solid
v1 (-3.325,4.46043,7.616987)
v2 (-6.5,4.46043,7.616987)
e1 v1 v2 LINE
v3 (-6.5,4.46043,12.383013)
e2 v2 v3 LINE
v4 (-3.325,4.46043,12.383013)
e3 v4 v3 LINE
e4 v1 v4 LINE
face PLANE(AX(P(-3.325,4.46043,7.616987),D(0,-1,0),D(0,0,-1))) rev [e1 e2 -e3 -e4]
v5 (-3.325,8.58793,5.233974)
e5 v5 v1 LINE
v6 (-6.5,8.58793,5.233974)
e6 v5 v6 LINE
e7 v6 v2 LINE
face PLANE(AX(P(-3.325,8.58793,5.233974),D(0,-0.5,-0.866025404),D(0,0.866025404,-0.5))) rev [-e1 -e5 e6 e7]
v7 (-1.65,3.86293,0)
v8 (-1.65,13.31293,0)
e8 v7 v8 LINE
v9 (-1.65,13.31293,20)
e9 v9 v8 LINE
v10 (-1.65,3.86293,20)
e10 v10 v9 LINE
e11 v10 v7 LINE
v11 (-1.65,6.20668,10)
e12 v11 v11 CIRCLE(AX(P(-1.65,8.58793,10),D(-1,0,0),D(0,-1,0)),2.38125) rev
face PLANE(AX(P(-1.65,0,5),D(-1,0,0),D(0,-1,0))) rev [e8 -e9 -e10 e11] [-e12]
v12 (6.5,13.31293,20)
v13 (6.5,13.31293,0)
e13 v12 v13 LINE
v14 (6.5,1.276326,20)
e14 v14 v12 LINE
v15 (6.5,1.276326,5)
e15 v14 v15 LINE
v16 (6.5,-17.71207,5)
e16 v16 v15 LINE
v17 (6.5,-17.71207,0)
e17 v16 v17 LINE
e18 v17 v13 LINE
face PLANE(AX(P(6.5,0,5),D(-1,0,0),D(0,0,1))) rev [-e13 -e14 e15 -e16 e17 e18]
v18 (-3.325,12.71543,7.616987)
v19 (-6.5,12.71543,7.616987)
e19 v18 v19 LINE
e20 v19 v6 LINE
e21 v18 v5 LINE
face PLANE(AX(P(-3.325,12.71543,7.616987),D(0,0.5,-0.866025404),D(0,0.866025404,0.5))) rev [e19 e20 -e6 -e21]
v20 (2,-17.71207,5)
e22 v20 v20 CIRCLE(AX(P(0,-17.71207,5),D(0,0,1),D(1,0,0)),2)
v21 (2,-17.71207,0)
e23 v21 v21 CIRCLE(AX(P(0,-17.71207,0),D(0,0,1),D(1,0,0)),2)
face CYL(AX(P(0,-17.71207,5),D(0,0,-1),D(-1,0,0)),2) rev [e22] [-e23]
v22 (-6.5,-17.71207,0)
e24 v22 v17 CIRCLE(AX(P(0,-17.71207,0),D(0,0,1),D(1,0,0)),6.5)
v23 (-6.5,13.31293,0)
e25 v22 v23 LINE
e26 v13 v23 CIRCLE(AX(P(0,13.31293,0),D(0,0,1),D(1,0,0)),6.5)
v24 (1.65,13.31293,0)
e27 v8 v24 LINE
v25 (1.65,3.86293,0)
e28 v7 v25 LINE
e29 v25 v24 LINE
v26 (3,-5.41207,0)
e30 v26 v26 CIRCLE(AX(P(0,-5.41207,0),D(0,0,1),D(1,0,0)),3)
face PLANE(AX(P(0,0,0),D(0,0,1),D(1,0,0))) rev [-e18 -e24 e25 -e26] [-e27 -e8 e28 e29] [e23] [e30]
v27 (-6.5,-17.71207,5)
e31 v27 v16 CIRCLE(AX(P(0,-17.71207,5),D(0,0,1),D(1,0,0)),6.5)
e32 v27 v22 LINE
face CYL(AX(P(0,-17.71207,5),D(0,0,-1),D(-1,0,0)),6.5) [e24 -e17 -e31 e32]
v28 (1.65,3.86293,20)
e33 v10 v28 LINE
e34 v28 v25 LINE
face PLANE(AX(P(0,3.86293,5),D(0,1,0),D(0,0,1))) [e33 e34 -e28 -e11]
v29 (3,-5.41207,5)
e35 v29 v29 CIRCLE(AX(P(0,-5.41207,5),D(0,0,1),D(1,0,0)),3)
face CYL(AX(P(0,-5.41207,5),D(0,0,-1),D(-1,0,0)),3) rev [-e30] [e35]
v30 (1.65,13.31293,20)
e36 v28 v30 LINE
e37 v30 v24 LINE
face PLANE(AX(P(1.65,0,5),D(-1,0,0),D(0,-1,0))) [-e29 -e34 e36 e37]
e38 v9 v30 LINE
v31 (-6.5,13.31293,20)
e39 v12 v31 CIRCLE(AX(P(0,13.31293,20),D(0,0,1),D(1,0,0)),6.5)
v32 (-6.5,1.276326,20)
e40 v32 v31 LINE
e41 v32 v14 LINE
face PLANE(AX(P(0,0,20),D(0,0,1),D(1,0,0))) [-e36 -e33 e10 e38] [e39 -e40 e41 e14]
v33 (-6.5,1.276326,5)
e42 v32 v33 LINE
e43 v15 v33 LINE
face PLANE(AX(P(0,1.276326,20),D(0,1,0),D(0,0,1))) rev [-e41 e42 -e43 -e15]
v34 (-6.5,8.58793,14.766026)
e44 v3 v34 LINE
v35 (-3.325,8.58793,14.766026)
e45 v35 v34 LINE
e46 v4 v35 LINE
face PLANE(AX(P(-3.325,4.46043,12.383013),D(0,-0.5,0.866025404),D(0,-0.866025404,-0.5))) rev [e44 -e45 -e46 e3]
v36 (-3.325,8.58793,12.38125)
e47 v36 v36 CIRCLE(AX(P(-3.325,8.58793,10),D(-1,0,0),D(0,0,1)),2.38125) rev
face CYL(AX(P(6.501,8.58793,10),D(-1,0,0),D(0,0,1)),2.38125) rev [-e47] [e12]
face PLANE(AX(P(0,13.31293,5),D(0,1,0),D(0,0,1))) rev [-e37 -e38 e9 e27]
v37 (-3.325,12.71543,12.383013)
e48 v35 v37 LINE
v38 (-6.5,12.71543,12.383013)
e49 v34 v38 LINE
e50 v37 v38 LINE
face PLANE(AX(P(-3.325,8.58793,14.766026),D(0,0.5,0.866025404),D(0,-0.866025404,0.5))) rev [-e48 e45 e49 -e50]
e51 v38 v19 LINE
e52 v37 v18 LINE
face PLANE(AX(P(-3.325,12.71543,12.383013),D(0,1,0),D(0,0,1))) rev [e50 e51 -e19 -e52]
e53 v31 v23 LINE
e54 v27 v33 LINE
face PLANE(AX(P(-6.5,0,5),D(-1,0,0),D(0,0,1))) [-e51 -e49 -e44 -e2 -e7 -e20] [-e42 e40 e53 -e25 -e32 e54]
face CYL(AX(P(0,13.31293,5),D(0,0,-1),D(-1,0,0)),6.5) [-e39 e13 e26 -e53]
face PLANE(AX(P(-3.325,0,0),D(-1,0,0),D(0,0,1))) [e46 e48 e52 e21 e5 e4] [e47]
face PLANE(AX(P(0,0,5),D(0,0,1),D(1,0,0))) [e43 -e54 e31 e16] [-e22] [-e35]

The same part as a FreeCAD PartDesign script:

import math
import FreeCAD as App
import Part
import Sketcher
from FreeCAD import Vector
Q = App.Units.Quantity


def add_polygon(sketch, points):
    """Adds a closed chain of lines whose ends are joined by coincident constraints."""
    first, n = sketch.GeometryCount, len(points)
    for a, b in zip(points, points[1:] + points[:1]):
        sketch.addGeometry(Part.LineSegment(App.Vector(*a, 0), App.Vector(*b, 0)), False)
    for i in range(n):
        sketch.addConstraint(Sketcher.Constraint("Coincident", first + i, 2, first + (i + 1) % n, 1))

doc = App.newDocument("Part")
params = doc.addObject("Spreadsheet::Sheet", "Params")
for row, (alias, value) in enumerate([
    ("sketch1_diameter", "4 mm"),
    ("sketch1_diameter2", "6 mm"),
    ("sketch1_radius", "6.5 mm"),
    ("sketch1_width", "3.3 mm"),
    ("sketch1_height", "9.45 mm"),
    ("pad1_length", "5 mm"),
    ("sketch2_radius", "6.5 mm"),
    ("sketch2_width", "3.3 mm"),
    ("sketch2_height", "9.45 mm"),
    ("pad2_length", "20 mm"),
    ("pocket1_length", "3.175 mm"),
    ("pocket2_length", "4.85 mm"),
], start=1):
    params.set(f"A{row}", alias)
    params.set(f"B{row}", "=" + value)
    params.setAlias(f"B{row}", alias)

body = doc.addObject("PartDesign::Body", "Body")

sketch1 = doc.addObject("Sketcher::SketchObject", "Sketch")
body.addObject(sketch1)
sketch1.AttachmentSupport = (doc.XY_Plane, [""])
sketch1.MapMode = "FlatFace"
sketch1.addGeometry(Part.ArcOfCircle(Part.Circle(Vector(0, -17.71207, 0), Vector(0, 0, 1), 6.5), math.radians(180), math.radians(360)), False)
sketch1.addGeometry(Part.LineSegment(Vector(6.5, -17.71207, 0), Vector(6.5, 13.31293, 0)), False)
sketch1.addGeometry(Part.ArcOfCircle(Part.Circle(Vector(0, 13.31293, 0), Vector(0, 0, 1), 6.5), math.radians(0), math.radians(180)), False)
sketch1.addGeometry(Part.LineSegment(Vector(-6.5, 13.31293, 0), Vector(-6.5, -17.71207, 0)), False)
sketch1.addGeometry(Part.Circle(Vector(0, -17.71207, 0), Vector(0, 0, 1), 2), False)
sketch1.addGeometry(Part.Circle(Vector(0, -5.41207, 0), Vector(0, 0, 1), 3), False)
add_polygon(sketch1, [(1.65, 3.86293), (-1.65, 3.86293), (-1.65, 13.31293), (1.65, 13.31293)])
sketch1.addConstraint(Sketcher.Constraint("Tangent", 0, 2, 1, 1))
sketch1.addConstraint(Sketcher.Constraint("Tangent", 1, 2, 2, 1))
sketch1.addConstraint(Sketcher.Constraint("Tangent", 2, 2, 3, 1))
sketch1.addConstraint(Sketcher.Constraint("Tangent", 3, 2, 0, 1))
sketch1.addConstraint(Sketcher.Constraint("Vertical", 1))
sketch1.addConstraint(Sketcher.Constraint("Vertical", 3))
sketch1.addConstraint(Sketcher.Constraint("Horizontal", 6))
sketch1.addConstraint(Sketcher.Constraint("Vertical", 7))
sketch1.addConstraint(Sketcher.Constraint("Horizontal", 8))
sketch1.addConstraint(Sketcher.Constraint("Vertical", 9))
sketch1.addConstraint(Sketcher.Constraint("Coincident", 4, 3, 0, 3))
sketch1.addConstraint(Sketcher.Constraint("PointOnObject", 0, 3, -2))
sketch1.addConstraint(Sketcher.Constraint("PointOnObject", 5, 3, -2))
sketch1.addConstraint(Sketcher.Constraint("Horizontal", 2, 2, 7, 2))
sketch1.addConstraint(Sketcher.Constraint("Diameter", 4, 4.0))
sketch1.addConstraint(Sketcher.Constraint("Diameter", 5, 6.0))
sketch1.addConstraint(Sketcher.Constraint("Radius", 0, 6.5))
sketch1.addConstraint(Sketcher.Constraint("DistanceX", 6, 2, 6, 1, 3.3))
sketch1.addConstraint(Sketcher.Constraint("DistanceY", 7, 1, 7, 2, 9.45))
sketch1.addConstraint(Sketcher.Constraint("DistanceY", 0, 3, 5, 3, 12.3))
sketch1.addConstraint(Sketcher.Constraint("DistanceY", 1, 1, 1, 2, 31.025))
sketch1.addConstraint(Sketcher.Constraint("DistanceX", 6, 2, -1, 1, 1.65))
sketch1.addConstraint(Sketcher.Constraint("DistanceY", 0, 3, -1, 1, 17.71207))
sketch1.setExpression("Constraints[18]", "Params.sketch1_diameter")
sketch1.setExpression("Constraints[19]", "Params.sketch1_diameter2")
sketch1.setExpression("Constraints[20]", "Params.sketch1_radius")
sketch1.setExpression("Constraints[21]", "Params.sketch1_width")
sketch1.setExpression("Constraints[22]", "Params.sketch1_height")
pad1 = doc.addObject("PartDesign::Pad", "Pad")
body.addObject(pad1)
pad1.Profile = sketch1
pad1.setExpression("Length", "Params.pad1_length")

sketch2 = doc.addObject("Sketcher::SketchObject", "Sketch001")
body.addObject(sketch2)
sketch2.AttachmentSupport = (doc.XY_Plane, [""])
sketch2.MapMode = "FlatFace"
sketch2.addGeometry(Part.LineSegment(Vector(-6.5, 13.31293, 0), Vector(-6.5, 1.276326, 0)), False)
sketch2.addGeometry(Part.LineSegment(Vector(-6.5, 1.276326, 0), Vector(6.5, 1.276326, 0)), False)
sketch2.addGeometry(Part.LineSegment(Vector(6.5, 1.276326, 0), Vector(6.5, 13.31293, 0)), False)
sketch2.addGeometry(Part.ArcOfCircle(Part.Circle(Vector(0, 13.31293, 0), Vector(0, 0, 1), 6.5), math.radians(0), math.radians(180)), False)
add_polygon(sketch2, [(1.65, 3.86293), (-1.65, 3.86293), (-1.65, 13.31293), (1.65, 13.31293)])
sketch2.addConstraint(Sketcher.Constraint("Coincident", 0, 2, 1, 1))
sketch2.addConstraint(Sketcher.Constraint("Coincident", 1, 2, 2, 1))
sketch2.addConstraint(Sketcher.Constraint("Tangent", 2, 2, 3, 1))
sketch2.addConstraint(Sketcher.Constraint("Tangent", 3, 2, 0, 1))
sketch2.addConstraint(Sketcher.Constraint("Vertical", 0))
sketch2.addConstraint(Sketcher.Constraint("Horizontal", 1))
sketch2.addConstraint(Sketcher.Constraint("Vertical", 2))
sketch2.addConstraint(Sketcher.Constraint("Horizontal", 4))
sketch2.addConstraint(Sketcher.Constraint("Vertical", 5))
sketch2.addConstraint(Sketcher.Constraint("Horizontal", 6))
sketch2.addConstraint(Sketcher.Constraint("Vertical", 7))
sketch2.addConstraint(Sketcher.Constraint("PointOnObject", 3, 3, -2))
sketch2.addConstraint(Sketcher.Constraint("Horizontal", 3, 2, 5, 2))
sketch2.addConstraint(Sketcher.Constraint("Radius", 3, 6.5))
sketch2.addConstraint(Sketcher.Constraint("DistanceX", 4, 2, 4, 1, 3.3))
sketch2.addConstraint(Sketcher.Constraint("DistanceY", 5, 1, 5, 2, 9.45))
sketch2.addConstraint(Sketcher.Constraint("DistanceX", 4, 2, -1, 1, 1.65))
sketch2.addConstraint(Sketcher.Constraint("DistanceY", 0, 2, 0, 1, 12.036604))
sketch2.addConstraint(Sketcher.Constraint("DistanceY", -1, 1, 3, 3, 13.31293))
sketch2.setExpression("Constraints[17]", "Params.sketch2_radius")
sketch2.setExpression("Constraints[18]", "Params.sketch2_width")
sketch2.setExpression("Constraints[19]", "Params.sketch2_height")
pad2 = doc.addObject("PartDesign::Pad", "Pad001")
body.addObject(pad2)
pad2.Profile = sketch2
pad2.setExpression("Length", "Params.pad2_length")

sketch3 = doc.addObject("Sketcher::SketchObject", "Sketch002")
body.addObject(sketch3)
sketch3.AttachmentSupport = (doc.YZ_Plane, [""])
sketch3.MapMode = "FlatFace"
sketch3.AttachmentOffset = App.Placement(Vector(0, 0, -6.5), App.Rotation())
add_polygon(sketch3, [(8.58793, 14.766026), (12.71543, 12.383013), (12.71543, 7.616987), (8.58793, 5.233974), (4.46043, 7.616987), (4.46043, 12.383013)])
sketch3.addConstraint(Sketcher.Constraint("Vertical", 1))
sketch3.addConstraint(Sketcher.Constraint("Vertical", 4))
sketch3.addConstraint(Sketcher.Constraint("Parallel", 0, 3))
sketch3.addConstraint(Sketcher.Constraint("Parallel", 2, 5))
sketch3.addConstraint(Sketcher.Constraint("Horizontal", 1, 2, 3, 2))
sketch3.addConstraint(Sketcher.Constraint("Horizontal", 0, 2, 4, 2))
sketch3.addConstraint(Sketcher.Constraint("Vertical", 2, 2, 5, 2))
sketch3.addConstraint(Sketcher.Constraint("Angle", 0, Q("-30 deg")))
sketch3.addConstraint(Sketcher.Constraint("DistanceX", 3, 2, 1, 2, 8.255))
sketch3.addConstraint(Sketcher.Constraint("DistanceY", 1, 2, 1, 1, 4.766026))
sketch3.addConstraint(Sketcher.Constraint("DistanceX", -1, 1, 0, 2, 12.71543))
sketch3.addConstraint(Sketcher.Constraint("DistanceY", -1, 1, 0, 2, 12.383013))
pocket1 = doc.addObject("PartDesign::Pocket", "Pocket")
body.addObject(pocket1)
pocket1.Profile = sketch3
pocket1.setExpression("Length", "Params.pocket1_length")
pocket1.Reversed = True

sketch4 = doc.addObject("Sketcher::SketchObject", "Sketch003")
body.addObject(sketch4)
sketch4.AttachmentSupport = (doc.YZ_Plane, [""])
sketch4.MapMode = "FlatFace"
sketch4.AttachmentOffset = App.Placement(Vector(0, 0, -6.5), App.Rotation())
sketch4.addGeometry(Part.Circle(Vector(8.58793, 10, 0), Vector(0, 0, 1), 2.38125), False)
sketch4.addConstraint(Sketcher.Constraint("DistanceY", -1, 1, 0, 3, 10.0))
sketch4.addConstraint(Sketcher.Constraint("Diameter", 0, 4.7625))
sketch4.addConstraint(Sketcher.Constraint("DistanceX", -1, 1, 0, 3, 8.58793))
pocket2 = doc.addObject("PartDesign::Pocket", "Pocket001")
body.addObject(pocket2)
pocket2.Profile = sketch4
pocket2.setExpression("Length", "Params.pocket2_length")
pocket2.Reversed = True

doc.recompute()
